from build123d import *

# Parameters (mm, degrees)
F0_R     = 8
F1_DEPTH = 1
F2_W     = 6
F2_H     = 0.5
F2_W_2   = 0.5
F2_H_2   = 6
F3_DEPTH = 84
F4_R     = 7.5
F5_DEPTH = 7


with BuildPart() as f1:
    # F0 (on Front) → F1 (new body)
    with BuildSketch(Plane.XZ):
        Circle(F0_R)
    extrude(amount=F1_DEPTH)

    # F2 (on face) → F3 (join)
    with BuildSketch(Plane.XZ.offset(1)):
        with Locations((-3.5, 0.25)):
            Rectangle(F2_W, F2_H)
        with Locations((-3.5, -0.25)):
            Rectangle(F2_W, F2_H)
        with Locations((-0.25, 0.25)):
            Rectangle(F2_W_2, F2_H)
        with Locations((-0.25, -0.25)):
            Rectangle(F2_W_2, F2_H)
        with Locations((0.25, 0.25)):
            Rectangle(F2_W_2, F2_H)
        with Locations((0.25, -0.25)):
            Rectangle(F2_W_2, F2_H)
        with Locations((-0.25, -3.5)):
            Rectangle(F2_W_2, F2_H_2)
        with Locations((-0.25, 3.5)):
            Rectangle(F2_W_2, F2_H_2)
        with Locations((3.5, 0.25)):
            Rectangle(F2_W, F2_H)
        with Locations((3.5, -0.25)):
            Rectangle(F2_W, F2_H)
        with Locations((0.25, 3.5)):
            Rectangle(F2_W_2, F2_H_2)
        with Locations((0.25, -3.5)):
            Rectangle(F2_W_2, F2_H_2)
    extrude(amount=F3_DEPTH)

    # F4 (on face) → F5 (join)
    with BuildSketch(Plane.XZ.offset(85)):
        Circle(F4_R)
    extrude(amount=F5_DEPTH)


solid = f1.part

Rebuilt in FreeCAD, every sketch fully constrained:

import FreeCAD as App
import Part
import Sketcher
from FreeCAD import Vector


def add_polygon(sketch, points):
    """Adds a closed chain of lines whose ends are joined by coincident constraints."""
    first, n = sketch.GeometryCount, len(points)
    for a, b in zip(points, points[1:] + points[:1]):
        sketch.addGeometry(Part.LineSegment(App.Vector(*a, 0), App.Vector(*b, 0)), False)
    for i in range(n):
        sketch.addConstraint(Sketcher.Constraint("Coincident", first + i, 2, first + (i + 1) % n, 1))

doc = App.newDocument("Part")
body = doc.addObject("PartDesign::Body", "Body")

# Sketch on XZ plane
sketch1 = doc.addObject("Sketcher::SketchObject", "Sketch")
body.addObject(sketch1)
sketch1.AttachmentSupport = (doc.XZ_Plane, [""])
sketch1.MapMode = "FlatFace"
sketch1.addGeometry(Part.Circle(Vector(0, 0, 0), Vector(0, 0, 1), 8), False)
sketch1.addConstraint(Sketcher.Constraint("Coincident", 0, 3, -1, 1))
sketch1.addConstraint(Sketcher.Constraint("Diameter", 0, 16.0))
pad1 = doc.addObject("PartDesign::Pad", "Pad")
body.addObject(pad1)
pad1.Profile = sketch1
pad1.Length = 1

# Sketch on XZ plane
sketch2 = doc.addObject("Sketcher::SketchObject", "Sketch001")
body.addObject(sketch2)
sketch2.AttachmentSupport = (doc.XZ_Plane, [""])
sketch2.MapMode = "FlatFace"
sketch2.AttachmentOffset = App.Placement(Vector(0, 0, 1), App.Rotation())
add_polygon(sketch2, [(-6.5, 0.5), (-6.5, -0.5), (-0.5, -0.5), (-0.5, -6.5), (0.5, -6.5), (0.5, -0.5), (6.5, -0.5), (6.5, 0.5), (0.5, 0.5), (0.5, 6.5), (-0.5, 6.5), (-0.5, 0.5)])  # lines 0-11
sketch2.addConstraint(Sketcher.Constraint("Vertical", 0))
sketch2.addConstraint(Sketcher.Constraint("Horizontal", 1))
sketch2.addConstraint(Sketcher.Constraint("Vertical", 2))
sketch2.addConstraint(Sketcher.Constraint("Horizontal", 3))
sketch2.addConstraint(Sketcher.Constraint("Vertical", 4))
sketch2.addConstraint(Sketcher.Constraint("Horizontal", 5))
sketch2.addConstraint(Sketcher.Constraint("Vertical", 6))
sketch2.addConstraint(Sketcher.Constraint("Horizontal", 7))
sketch2.addConstraint(Sketcher.Constraint("Vertical", 8))
sketch2.addConstraint(Sketcher.Constraint("Horizontal", 9))
sketch2.addConstraint(Sketcher.Constraint("Vertical", 10))
sketch2.addConstraint(Sketcher.Constraint("Horizontal", 11))
sketch2.addConstraint(Sketcher.Constraint("Symmetric", 0, 2, 6, 2, -1, 1))
sketch2.addConstraint(Sketcher.Constraint("Symmetric", 2, 2, 8, 2, -1, 1))
sketch2.addConstraint(Sketcher.Constraint("Symmetric", 4, 2, 10, 2, -1, 1))
sketch2.addConstraint(Sketcher.Constraint("Symmetric", 1, 2, 4, 2, -2))
sketch2.addConstraint(Sketcher.Constraint("Equal", 9, 0))
sketch2.addConstraint(Sketcher.Constraint("Equal", 11, 2))
sketch2.addConstraint(Sketcher.Constraint("DistanceX", 1, 1, 1, 2, 6.0))
sketch2.addConstraint(Sketcher.Constraint("DistanceX", 3, 1, 3, 2, 1.0))
pad2 = doc.addObject("PartDesign::Pad", "Pad001")
body.addObject(pad2)
pad2.Profile = sketch2
pad2.Length = 84

# Sketch on XZ plane
sketch3 = doc.addObject("Sketcher::SketchObject", "Sketch002")
body.addObject(sketch3)
sketch3.AttachmentSupport = (doc.XZ_Plane, [""])
sketch3.MapMode = "FlatFace"
sketch3.AttachmentOffset = App.Placement(Vector(0, 0, 85), App.Rotation())
sketch3.addGeometry(Part.Circle(Vector(0, 0, 0), Vector(0, 0, 1), 8), False)
sketch3.addConstraint(Sketcher.Constraint("Coincident", 0, 3, -1, 1))
sketch3.addConstraint(Sketcher.Constraint("Diameter", 0, 15.0))
pad3 = doc.addObject("PartDesign::Pad", "Pad002")
body.addObject(pad3)
pad3.Profile = sketch3
pad3.Length = 7

doc.recompute()
